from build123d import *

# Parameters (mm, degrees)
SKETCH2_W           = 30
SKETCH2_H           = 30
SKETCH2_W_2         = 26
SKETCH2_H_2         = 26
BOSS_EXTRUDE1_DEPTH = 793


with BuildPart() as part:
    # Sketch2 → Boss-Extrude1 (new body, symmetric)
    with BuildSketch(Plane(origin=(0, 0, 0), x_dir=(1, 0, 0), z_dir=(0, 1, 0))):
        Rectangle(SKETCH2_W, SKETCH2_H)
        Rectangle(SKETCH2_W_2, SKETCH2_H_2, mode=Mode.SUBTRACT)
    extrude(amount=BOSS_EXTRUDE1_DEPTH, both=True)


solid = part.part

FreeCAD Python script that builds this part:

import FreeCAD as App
import Part
import Sketcher
from FreeCAD import Vector
Q = App.Units.Quantity

doc = App.newDocument("Part")
body = doc.addObject("PartDesign::Body", "Body")

sketch1 = body.newObject("Sketcher::SketchObject", "Sketch")
sketch1.AttachmentSupport = (doc.getObject("XZ_Plane"), [""])
sketch1.MapMode = "FlatFace"
sketch1.addGeometry([
    Part.LineSegment(Vector(-15, -15, 0), Vector(-15, 15, 0)),
    Part.LineSegment(Vector(-15, 15, 0), Vector(15, 15, 0)),
    Part.LineSegment(Vector(15, 15, 0), Vector(15, -15, 0)),
    Part.LineSegment(Vector(15, -15, 0), Vector(-15, -15, 0)),
    Part.LineSegment(Vector(13, 13, 0), Vector(-13, 13, 0)),
    Part.LineSegment(Vector(-13, 13, 0), Vector(-13, -13, 0)),
    Part.LineSegment(Vector(-13, -13, 0), Vector(13, -13, 0)),
    Part.LineSegment(Vector(13, -13, 0), Vector(13, 13, 0)),
], False)
sketch1.addConstraint([
    Sketcher.Constraint("Coincident", 0, 2, 1, 1),
    Sketcher.Constraint("Coincident", 1, 2, 2, 1),
    Sketcher.Constraint("Coincident", 2, 2, 3, 1),
    Sketcher.Constraint("Coincident", 3, 2, 0, 1),
    Sketcher.Constraint("Coincident", 4, 2, 5, 1),
    Sketcher.Constraint("Coincident", 5, 2, 6, 1),
    Sketcher.Constraint("Coincident", 6, 2, 7, 1),
    Sketcher.Constraint("Coincident", 7, 2, 4, 1),
    Sketcher.Constraint("Vertical", 0),
    Sketcher.Constraint("Horizontal", 1),
    Sketcher.Constraint("Vertical", 2),
    Sketcher.Constraint("Horizontal", 3),
    Sketcher.Constraint("Horizontal", 4),
    Sketcher.Constraint("Vertical", 5),
    Sketcher.Constraint("Horizontal", 6),
    Sketcher.Constraint("Vertical", 7),
    Sketcher.Constraint("Symmetric", 0, 2, 2, 2, -1, 1),
    Sketcher.Constraint("Symmetric", 4, 2, 6, 2, -1, 1),
    Sketcher.Constraint("Equal", 3, 0),
    Sketcher.Constraint("Equal", 6, 5),
    Sketcher.Constraint("DistanceX", 1, 1, 1, 2, Q("30 mm")),
    Sketcher.Constraint("DistanceX", 4, 2, 4, 1, Q("26 mm")),
])
pad1 = body.newObject("PartDesign::Pad", "Pad")
pad1.Profile = sketch1
pad1.Length = 1586
pad1.Midplane = True

doc.recompute()
